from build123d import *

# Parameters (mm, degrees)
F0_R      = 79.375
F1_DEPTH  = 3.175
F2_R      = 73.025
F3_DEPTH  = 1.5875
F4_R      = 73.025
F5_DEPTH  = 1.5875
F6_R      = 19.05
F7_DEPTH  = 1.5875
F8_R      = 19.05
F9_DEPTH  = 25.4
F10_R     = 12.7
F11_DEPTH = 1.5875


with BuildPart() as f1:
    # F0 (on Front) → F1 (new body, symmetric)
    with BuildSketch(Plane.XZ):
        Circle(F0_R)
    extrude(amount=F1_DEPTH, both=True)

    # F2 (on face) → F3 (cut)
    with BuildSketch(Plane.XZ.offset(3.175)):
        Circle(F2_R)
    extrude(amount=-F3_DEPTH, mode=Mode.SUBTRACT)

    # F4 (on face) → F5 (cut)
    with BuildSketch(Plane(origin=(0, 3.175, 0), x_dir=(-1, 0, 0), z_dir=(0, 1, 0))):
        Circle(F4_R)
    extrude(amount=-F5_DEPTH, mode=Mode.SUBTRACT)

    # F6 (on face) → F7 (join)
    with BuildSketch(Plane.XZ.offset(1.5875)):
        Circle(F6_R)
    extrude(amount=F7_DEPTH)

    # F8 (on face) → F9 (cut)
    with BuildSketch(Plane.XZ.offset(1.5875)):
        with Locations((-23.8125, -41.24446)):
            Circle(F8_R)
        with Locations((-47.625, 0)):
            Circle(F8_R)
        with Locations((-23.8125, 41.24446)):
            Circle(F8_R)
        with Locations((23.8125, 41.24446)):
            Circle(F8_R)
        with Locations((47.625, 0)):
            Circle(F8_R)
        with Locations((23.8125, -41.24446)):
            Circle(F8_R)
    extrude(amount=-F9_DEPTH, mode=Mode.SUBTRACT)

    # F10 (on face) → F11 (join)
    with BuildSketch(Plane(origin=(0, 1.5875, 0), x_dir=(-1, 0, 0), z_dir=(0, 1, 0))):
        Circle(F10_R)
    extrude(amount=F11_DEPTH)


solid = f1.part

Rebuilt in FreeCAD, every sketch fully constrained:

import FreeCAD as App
import Part
import Sketcher

V = App.Vector
Q = App.Units.Quantity

doc = App.newDocument("Part")
body = doc.addObject("PartDesign::Body", "Body")

# Sketch on XZ plane
sketch1 = body.newObject("Sketcher::SketchObject", "Sketch")
sketch1.AttachmentSupport = (doc.getObject("XZ_Plane"), [""])
sketch1.MapMode = "FlatFace"
sketch1.addGeometry(Part.Circle(V(0, 0, 0), V(0, 0, 1), 79), False)
sketch1.addConstraint([
    Sketcher.Constraint("Coincident", 0, 3, -1, 1),
    Sketcher.Constraint("Diameter", 0, Q("6.25 in")),
])
pad1 = body.newObject("PartDesign::Pad", "Pad")
pad1.Profile = sketch1
pad1.Length = Q("0.25 in")
pad1.Midplane = True

# Sketch on XZ plane
sketch2 = body.newObject("Sketcher::SketchObject", "Sketch001")
sketch2.AttachmentSupport = (doc.getObject("XZ_Plane"), [""])
sketch2.MapMode = "FlatFace"
sketch2.AttachmentOffset = App.Placement(V(0, 0, 0.125 * 25.4), App.Rotation())
sketch2.addGeometry(Part.Circle(V(0, 0, 0), V(0, 0, 1), 73), False)
sketch2.addConstraint([
    Sketcher.Constraint("Coincident", 0, 3, -1, 1),
    Sketcher.Constraint("Diameter", 0, Q("5.75 in")),
])
pocket1 = body.newObject("PartDesign::Pocket", "Pocket")
pocket1.Profile = sketch2
pocket1.Length = Q("0.0625 in")

# Sketch on XZ plane
sketch3 = body.newObject("Sketcher::SketchObject", "Sketch002")
sketch3.AttachmentSupport = (doc.getObject("XZ_Plane"), [""])
sketch3.MapMode = "FlatFace"
sketch3.AttachmentOffset = App.Placement(V(0, 0, -0.125 * 25.4), App.Rotation())
sketch3.addGeometry(Part.Circle(V(0, 0, 0), V(0, 0, 1), 73), False)
sketch3.addConstraint([
    Sketcher.Constraint("Coincident", 0, 3, -1, 1),
    Sketcher.Constraint("Diameter", 0, Q("5.75 in")),
])
pocket2 = body.newObject("PartDesign::Pocket", "Pocket001")
pocket2.Profile = sketch3
pocket2.Length = Q("0.0625 in")
pocket2.Reversed = True

# Sketch on XZ plane
sketch4 = body.newObject("Sketcher::SketchObject", "Sketch003")
sketch4.AttachmentSupport = (doc.getObject("XZ_Plane"), [""])
sketch4.MapMode = "FlatFace"
sketch4.AttachmentOffset = App.Placement(V(0, 0, 0.0625 * 25.4), App.Rotation())
sketch4.addGeometry(Part.Circle(V(0, 0, 0), V(0, 0, 1), 19), False)
sketch4.addConstraint([
    Sketcher.Constraint("Coincident", 0, 3, -1, 1),
    Sketcher.Constraint("Diameter", 0, Q("1.5 in")),
])
pad2 = body.newObject("PartDesign::Pad", "Pad001")
pad2.Profile = sketch4
pad2.Length = Q("0.0625 in")

# Sketch on XZ plane
sketch5 = body.newObject("Sketcher::SketchObject", "Sketch004")
sketch5.AttachmentSupport = (doc.getObject("XZ_Plane"), [""])
sketch5.MapMode = "FlatFace"
sketch5.AttachmentOffset = App.Placement(V(0, 0, 0.0625 * 25.4), App.Rotation())
sketch5.addGeometry([
    Part.Circle(V(-24, -41, 0), V(0, 0, 1), 19),  # 0
    Part.Circle(V(-48, 0, 0), V(0, 0, 1), 19),  # 1
    Part.Circle(V(-24, 41, 0), V(0, 0, 1), 19),  # 2
    Part.Circle(V(24, 41, 0), V(0, 0, 1), 19),  # 3
    Part.Circle(V(48, 0, 0), V(0, 0, 1), 19),  # 4
    Part.Circle(V(24, -41, 0), V(0, 0, 1), 19),  # 5
], False)
sketch5.addConstraint([
    Sketcher.Constraint("Equal", 0, 1),
    Sketcher.Constraint("Equal", 1, 2),
    Sketcher.Constraint("Equal", 2, 3),
    Sketcher.Constraint("Equal", 3, 4),
    Sketcher.Constraint("Equal", 4, 5),
    Sketcher.Constraint("Symmetric", 0, 3, 3, 3, -1, 1),
    Sketcher.Constraint("Symmetric", 1, 3, 4, 3, -1, 1),
    Sketcher.Constraint("Symmetric", 2, 3, 5, 3, -1, 1),
    Sketcher.Constraint("Symmetric", 2, 3, 3, 3, -2),
    Sketcher.Constraint("PointOnObject", 1, 3, -1),
    Sketcher.Constraint("Diameter", 0, Q("1.5 in")),
    Sketcher.Constraint("DistanceX", 1, 3, 4, 3, Q("3.75 in")),
    Sketcher.Constraint("DistanceX", 0, 3, -1, 1, Q("0.9375 in")),
    Sketcher.Constraint("DistanceY", 0, 3, -1, 1, Q("41.24446 mm")),
])
pocket3 = body.newObject("PartDesign::Pocket", "Pocket002")
pocket3.Profile = sketch5
pocket3.Length = Q("1 in")

# Sketch on XZ plane
sketch6 = body.newObject("Sketcher::SketchObject", "Sketch005")
sketch6.AttachmentSupport = (doc.getObject("XZ_Plane"), [""])
sketch6.MapMode = "FlatFace"
sketch6.AttachmentOffset = App.Placement(V(0, 0, -0.0625 * 25.4), App.Rotation())
sketch6.addGeometry(Part.Circle(V(0, 0, 0), V(0, 0, 1), 13), False)
sketch6.addConstraint([
    Sketcher.Constraint("Coincident", 0, 3, -1, 1),
    Sketcher.Constraint("Diameter", 0, Q("1 in")),
])
pad3 = body.newObject("PartDesign::Pad", "Pad002")
pad3.Profile = sketch6
pad3.Length = Q("0.0625 in")
pad3.Reversed = True

doc.recompute()
